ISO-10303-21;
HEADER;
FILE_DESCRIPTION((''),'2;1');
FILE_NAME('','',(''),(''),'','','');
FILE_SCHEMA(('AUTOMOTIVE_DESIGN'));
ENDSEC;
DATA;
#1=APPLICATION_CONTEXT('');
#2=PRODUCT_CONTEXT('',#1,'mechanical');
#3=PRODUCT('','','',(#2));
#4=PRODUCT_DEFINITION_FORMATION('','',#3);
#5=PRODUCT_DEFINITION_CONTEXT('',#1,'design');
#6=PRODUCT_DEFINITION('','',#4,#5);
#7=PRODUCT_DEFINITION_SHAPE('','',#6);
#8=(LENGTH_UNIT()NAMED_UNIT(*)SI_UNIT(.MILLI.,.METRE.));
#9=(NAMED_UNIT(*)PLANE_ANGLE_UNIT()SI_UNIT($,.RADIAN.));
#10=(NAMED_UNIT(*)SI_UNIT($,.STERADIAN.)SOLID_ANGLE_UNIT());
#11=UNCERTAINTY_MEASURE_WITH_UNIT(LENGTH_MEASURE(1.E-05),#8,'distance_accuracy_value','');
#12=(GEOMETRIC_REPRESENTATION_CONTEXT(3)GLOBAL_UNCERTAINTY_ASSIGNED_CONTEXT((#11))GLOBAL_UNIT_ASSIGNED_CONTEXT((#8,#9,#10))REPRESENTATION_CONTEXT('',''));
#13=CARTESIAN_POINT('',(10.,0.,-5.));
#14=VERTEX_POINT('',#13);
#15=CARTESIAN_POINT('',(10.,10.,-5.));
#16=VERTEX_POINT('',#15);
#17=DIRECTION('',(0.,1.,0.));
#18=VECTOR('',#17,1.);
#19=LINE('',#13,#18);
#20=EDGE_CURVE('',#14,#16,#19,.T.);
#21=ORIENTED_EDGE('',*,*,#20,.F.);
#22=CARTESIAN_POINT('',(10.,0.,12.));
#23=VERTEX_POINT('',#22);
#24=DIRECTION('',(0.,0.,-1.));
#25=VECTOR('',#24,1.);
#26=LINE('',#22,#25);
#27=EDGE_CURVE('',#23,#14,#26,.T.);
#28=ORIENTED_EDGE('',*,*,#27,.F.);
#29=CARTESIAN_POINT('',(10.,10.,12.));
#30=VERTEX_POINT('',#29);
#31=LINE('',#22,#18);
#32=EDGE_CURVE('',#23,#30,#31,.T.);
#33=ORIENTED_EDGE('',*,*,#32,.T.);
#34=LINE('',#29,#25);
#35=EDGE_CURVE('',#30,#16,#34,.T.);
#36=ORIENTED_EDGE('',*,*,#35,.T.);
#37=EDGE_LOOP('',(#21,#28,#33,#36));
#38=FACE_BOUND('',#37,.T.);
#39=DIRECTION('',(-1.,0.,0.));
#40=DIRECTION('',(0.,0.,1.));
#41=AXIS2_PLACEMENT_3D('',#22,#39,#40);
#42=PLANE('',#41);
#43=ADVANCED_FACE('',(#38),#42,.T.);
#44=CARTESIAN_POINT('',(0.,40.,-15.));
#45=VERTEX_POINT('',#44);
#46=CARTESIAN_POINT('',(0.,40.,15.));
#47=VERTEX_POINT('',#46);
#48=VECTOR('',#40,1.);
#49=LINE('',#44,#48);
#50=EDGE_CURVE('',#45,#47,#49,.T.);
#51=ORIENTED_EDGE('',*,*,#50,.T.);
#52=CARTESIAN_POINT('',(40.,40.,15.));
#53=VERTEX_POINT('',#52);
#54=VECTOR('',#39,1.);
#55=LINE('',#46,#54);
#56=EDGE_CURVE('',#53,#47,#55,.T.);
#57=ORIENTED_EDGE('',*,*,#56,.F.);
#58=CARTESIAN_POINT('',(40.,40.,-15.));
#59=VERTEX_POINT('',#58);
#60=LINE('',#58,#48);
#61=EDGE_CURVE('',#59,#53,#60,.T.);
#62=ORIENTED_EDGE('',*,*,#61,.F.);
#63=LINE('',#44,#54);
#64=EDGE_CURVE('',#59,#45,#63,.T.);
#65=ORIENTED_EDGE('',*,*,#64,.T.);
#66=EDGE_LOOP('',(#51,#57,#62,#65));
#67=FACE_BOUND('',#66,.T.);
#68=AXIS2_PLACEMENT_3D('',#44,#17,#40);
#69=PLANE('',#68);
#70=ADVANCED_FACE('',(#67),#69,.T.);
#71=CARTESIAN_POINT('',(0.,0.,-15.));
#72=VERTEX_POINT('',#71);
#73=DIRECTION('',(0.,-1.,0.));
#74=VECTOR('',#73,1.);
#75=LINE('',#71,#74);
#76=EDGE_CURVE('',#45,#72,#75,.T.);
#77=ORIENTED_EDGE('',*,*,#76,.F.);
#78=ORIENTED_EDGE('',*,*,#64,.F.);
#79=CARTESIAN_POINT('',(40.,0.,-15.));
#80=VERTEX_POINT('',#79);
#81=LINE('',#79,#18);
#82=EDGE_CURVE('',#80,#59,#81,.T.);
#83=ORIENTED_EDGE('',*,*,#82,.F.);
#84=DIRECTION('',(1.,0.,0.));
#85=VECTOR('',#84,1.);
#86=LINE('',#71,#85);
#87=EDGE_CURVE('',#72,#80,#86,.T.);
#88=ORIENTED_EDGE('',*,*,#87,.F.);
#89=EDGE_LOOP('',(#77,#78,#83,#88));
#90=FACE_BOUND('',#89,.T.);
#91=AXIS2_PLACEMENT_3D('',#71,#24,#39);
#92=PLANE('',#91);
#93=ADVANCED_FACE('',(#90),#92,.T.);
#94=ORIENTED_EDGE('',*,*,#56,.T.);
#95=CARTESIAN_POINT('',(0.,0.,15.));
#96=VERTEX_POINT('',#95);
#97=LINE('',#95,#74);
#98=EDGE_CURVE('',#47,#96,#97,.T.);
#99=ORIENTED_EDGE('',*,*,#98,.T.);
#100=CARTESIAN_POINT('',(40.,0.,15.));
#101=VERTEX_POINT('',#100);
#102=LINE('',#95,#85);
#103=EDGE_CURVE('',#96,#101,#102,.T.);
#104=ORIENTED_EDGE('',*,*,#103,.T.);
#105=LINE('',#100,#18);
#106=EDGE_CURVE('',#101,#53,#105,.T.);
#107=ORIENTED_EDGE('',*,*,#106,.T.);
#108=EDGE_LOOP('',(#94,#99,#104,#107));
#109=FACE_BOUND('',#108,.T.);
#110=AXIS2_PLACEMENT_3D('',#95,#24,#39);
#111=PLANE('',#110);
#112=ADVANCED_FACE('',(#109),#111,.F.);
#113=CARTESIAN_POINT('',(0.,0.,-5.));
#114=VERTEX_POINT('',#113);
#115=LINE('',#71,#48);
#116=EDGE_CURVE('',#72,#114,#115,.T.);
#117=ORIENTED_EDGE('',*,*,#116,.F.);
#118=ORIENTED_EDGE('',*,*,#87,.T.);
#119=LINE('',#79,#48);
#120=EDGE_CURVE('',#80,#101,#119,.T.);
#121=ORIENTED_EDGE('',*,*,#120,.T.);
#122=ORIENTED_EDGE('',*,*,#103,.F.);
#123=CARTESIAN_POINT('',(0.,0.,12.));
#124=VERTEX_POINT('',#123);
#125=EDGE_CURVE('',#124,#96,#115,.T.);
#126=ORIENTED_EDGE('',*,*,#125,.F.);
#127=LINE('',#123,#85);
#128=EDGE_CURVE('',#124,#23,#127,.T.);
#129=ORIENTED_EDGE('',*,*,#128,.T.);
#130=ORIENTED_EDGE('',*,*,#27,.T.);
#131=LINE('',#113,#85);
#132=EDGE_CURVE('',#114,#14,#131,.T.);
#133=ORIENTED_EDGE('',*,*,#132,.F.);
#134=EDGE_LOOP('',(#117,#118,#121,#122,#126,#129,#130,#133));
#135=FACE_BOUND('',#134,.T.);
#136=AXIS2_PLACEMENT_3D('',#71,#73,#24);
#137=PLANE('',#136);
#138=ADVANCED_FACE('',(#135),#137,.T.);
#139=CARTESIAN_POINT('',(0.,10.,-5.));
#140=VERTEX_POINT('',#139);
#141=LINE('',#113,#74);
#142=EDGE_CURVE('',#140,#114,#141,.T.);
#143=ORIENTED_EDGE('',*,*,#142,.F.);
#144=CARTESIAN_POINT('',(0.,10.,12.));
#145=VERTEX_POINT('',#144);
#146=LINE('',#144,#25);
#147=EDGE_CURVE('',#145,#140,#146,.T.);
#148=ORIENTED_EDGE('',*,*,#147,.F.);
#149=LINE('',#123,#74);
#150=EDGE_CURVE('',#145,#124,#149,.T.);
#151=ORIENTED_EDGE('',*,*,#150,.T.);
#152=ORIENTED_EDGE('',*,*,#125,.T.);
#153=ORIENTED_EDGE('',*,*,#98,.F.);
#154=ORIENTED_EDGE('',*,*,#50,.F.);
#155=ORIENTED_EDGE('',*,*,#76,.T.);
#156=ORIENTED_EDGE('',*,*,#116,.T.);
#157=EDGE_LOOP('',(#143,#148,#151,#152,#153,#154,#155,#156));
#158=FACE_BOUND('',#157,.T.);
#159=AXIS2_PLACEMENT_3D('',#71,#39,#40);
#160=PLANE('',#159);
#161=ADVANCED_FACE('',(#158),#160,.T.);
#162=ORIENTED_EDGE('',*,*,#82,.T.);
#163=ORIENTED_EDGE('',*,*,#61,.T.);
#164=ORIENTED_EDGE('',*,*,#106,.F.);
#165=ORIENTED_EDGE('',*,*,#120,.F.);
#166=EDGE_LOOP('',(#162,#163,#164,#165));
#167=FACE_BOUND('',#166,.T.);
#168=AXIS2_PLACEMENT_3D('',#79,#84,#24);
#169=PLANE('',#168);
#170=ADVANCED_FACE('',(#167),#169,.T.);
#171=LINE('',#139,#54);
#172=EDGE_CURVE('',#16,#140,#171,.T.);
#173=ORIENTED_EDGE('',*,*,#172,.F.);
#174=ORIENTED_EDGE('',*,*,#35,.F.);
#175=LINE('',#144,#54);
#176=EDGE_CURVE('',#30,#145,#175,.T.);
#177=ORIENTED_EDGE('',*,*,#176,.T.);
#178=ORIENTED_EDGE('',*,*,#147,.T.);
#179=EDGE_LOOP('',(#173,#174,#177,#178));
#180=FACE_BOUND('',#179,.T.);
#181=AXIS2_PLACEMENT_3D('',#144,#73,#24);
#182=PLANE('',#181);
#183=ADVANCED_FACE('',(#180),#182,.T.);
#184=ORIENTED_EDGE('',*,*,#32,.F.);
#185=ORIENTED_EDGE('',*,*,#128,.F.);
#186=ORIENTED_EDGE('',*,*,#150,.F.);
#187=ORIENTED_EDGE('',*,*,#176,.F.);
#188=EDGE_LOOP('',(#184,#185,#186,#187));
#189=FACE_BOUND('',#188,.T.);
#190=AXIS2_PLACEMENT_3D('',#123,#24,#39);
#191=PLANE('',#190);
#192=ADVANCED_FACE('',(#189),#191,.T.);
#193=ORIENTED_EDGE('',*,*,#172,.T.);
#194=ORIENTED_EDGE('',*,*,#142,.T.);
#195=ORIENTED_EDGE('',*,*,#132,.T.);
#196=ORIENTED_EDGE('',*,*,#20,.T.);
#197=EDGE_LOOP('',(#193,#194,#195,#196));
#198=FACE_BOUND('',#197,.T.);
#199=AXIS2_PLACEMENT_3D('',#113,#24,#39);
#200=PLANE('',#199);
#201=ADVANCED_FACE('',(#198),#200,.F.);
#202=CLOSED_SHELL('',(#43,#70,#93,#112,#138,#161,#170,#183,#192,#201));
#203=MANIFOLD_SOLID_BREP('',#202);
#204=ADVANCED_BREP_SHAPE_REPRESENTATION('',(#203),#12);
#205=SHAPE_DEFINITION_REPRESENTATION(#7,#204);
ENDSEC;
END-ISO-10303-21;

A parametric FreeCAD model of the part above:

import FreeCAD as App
import Part
import Sketcher
Q = App.Units.Quantity


def add_polygon(sketch, points):
    """Adds a closed chain of lines whose ends are joined by coincident constraints."""
    first, n = sketch.GeometryCount, len(points)
    for a, b in zip(points, points[1:] + points[:1]):
        sketch.addGeometry(Part.LineSegment(App.Vector(*a, 0), App.Vector(*b, 0)), False)
    for i in range(n):
        sketch.addConstraint(Sketcher.Constraint("Coincident", first + i, 2, first + (i + 1) % n, 1))

doc = App.newDocument("Part")
body = doc.addObject("PartDesign::Body", "Body")

# Sketch on XY plane
sketch1 = body.newObject("Sketcher::SketchObject", "Sketch")
sketch1.AttachmentSupport = (doc.getObject("XY_Plane"), [""])
sketch1.MapMode = "FlatFace"
add_polygon(sketch1, [(0, 40), (0, 0), (40, 0), (40, 40)])  # lines 0-3
sketch1.addConstraint(Sketcher.Constraint("Vertical", 0))
sketch1.addConstraint(Sketcher.Constraint("Horizontal", 1))
sketch1.addConstraint(Sketcher.Constraint("Vertical", 2))
sketch1.addConstraint(Sketcher.Constraint("Horizontal", 3))
sketch1.addConstraint(Sketcher.Constraint("Coincident", 0, 2, -1, 1))
sketch1.addConstraint(Sketcher.Constraint("Equal", 3, 0))
sketch1.addConstraint(Sketcher.Constraint("DistanceX", 1, 1, 1, 2, Q("40 mm")))
pad1 = body.newObject("PartDesign::Pad", "Pad")
pad1.Profile = sketch1
pad1.Type = "TwoLengths"
pad1.Length = 15
pad1.Length2 = 15

# Sketch on XY plane
sketch2 = body.newObject("Sketcher::SketchObject", "Sketch001")
sketch2.AttachmentSupport = (doc.getObject("XY_Plane"), [""])
sketch2.MapMode = "FlatFace"
add_polygon(sketch2, [(0, 10), (0, 0), (10, 0), (10, 10)])  # lines 0-3
sketch2.addConstraint(Sketcher.Constraint("Vertical", 0))
sketch2.addConstraint(Sketcher.Constraint("Horizontal", 1))
sketch2.addConstraint(Sketcher.Constraint("Vertical", 2))
sketch2.addConstraint(Sketcher.Constraint("Horizontal", 3))
sketch2.addConstraint(Sketcher.Constraint("Coincident", 0, 2, -1, 1))
sketch2.addConstraint(Sketcher.Constraint("Equal", 3, 0))
sketch2.addConstraint(Sketcher.Constraint("DistanceX", 1, 1, 1, 2, Q("10 mm")))
pocket1 = body.newObject("PartDesign::Pocket", "Pocket")
pocket1.Profile = sketch2
pocket1.Type = "TwoLengths"
pocket1.Length = 12
pocket1.Length2 = 5
pocket1.Reversed = True

doc.recompute()
